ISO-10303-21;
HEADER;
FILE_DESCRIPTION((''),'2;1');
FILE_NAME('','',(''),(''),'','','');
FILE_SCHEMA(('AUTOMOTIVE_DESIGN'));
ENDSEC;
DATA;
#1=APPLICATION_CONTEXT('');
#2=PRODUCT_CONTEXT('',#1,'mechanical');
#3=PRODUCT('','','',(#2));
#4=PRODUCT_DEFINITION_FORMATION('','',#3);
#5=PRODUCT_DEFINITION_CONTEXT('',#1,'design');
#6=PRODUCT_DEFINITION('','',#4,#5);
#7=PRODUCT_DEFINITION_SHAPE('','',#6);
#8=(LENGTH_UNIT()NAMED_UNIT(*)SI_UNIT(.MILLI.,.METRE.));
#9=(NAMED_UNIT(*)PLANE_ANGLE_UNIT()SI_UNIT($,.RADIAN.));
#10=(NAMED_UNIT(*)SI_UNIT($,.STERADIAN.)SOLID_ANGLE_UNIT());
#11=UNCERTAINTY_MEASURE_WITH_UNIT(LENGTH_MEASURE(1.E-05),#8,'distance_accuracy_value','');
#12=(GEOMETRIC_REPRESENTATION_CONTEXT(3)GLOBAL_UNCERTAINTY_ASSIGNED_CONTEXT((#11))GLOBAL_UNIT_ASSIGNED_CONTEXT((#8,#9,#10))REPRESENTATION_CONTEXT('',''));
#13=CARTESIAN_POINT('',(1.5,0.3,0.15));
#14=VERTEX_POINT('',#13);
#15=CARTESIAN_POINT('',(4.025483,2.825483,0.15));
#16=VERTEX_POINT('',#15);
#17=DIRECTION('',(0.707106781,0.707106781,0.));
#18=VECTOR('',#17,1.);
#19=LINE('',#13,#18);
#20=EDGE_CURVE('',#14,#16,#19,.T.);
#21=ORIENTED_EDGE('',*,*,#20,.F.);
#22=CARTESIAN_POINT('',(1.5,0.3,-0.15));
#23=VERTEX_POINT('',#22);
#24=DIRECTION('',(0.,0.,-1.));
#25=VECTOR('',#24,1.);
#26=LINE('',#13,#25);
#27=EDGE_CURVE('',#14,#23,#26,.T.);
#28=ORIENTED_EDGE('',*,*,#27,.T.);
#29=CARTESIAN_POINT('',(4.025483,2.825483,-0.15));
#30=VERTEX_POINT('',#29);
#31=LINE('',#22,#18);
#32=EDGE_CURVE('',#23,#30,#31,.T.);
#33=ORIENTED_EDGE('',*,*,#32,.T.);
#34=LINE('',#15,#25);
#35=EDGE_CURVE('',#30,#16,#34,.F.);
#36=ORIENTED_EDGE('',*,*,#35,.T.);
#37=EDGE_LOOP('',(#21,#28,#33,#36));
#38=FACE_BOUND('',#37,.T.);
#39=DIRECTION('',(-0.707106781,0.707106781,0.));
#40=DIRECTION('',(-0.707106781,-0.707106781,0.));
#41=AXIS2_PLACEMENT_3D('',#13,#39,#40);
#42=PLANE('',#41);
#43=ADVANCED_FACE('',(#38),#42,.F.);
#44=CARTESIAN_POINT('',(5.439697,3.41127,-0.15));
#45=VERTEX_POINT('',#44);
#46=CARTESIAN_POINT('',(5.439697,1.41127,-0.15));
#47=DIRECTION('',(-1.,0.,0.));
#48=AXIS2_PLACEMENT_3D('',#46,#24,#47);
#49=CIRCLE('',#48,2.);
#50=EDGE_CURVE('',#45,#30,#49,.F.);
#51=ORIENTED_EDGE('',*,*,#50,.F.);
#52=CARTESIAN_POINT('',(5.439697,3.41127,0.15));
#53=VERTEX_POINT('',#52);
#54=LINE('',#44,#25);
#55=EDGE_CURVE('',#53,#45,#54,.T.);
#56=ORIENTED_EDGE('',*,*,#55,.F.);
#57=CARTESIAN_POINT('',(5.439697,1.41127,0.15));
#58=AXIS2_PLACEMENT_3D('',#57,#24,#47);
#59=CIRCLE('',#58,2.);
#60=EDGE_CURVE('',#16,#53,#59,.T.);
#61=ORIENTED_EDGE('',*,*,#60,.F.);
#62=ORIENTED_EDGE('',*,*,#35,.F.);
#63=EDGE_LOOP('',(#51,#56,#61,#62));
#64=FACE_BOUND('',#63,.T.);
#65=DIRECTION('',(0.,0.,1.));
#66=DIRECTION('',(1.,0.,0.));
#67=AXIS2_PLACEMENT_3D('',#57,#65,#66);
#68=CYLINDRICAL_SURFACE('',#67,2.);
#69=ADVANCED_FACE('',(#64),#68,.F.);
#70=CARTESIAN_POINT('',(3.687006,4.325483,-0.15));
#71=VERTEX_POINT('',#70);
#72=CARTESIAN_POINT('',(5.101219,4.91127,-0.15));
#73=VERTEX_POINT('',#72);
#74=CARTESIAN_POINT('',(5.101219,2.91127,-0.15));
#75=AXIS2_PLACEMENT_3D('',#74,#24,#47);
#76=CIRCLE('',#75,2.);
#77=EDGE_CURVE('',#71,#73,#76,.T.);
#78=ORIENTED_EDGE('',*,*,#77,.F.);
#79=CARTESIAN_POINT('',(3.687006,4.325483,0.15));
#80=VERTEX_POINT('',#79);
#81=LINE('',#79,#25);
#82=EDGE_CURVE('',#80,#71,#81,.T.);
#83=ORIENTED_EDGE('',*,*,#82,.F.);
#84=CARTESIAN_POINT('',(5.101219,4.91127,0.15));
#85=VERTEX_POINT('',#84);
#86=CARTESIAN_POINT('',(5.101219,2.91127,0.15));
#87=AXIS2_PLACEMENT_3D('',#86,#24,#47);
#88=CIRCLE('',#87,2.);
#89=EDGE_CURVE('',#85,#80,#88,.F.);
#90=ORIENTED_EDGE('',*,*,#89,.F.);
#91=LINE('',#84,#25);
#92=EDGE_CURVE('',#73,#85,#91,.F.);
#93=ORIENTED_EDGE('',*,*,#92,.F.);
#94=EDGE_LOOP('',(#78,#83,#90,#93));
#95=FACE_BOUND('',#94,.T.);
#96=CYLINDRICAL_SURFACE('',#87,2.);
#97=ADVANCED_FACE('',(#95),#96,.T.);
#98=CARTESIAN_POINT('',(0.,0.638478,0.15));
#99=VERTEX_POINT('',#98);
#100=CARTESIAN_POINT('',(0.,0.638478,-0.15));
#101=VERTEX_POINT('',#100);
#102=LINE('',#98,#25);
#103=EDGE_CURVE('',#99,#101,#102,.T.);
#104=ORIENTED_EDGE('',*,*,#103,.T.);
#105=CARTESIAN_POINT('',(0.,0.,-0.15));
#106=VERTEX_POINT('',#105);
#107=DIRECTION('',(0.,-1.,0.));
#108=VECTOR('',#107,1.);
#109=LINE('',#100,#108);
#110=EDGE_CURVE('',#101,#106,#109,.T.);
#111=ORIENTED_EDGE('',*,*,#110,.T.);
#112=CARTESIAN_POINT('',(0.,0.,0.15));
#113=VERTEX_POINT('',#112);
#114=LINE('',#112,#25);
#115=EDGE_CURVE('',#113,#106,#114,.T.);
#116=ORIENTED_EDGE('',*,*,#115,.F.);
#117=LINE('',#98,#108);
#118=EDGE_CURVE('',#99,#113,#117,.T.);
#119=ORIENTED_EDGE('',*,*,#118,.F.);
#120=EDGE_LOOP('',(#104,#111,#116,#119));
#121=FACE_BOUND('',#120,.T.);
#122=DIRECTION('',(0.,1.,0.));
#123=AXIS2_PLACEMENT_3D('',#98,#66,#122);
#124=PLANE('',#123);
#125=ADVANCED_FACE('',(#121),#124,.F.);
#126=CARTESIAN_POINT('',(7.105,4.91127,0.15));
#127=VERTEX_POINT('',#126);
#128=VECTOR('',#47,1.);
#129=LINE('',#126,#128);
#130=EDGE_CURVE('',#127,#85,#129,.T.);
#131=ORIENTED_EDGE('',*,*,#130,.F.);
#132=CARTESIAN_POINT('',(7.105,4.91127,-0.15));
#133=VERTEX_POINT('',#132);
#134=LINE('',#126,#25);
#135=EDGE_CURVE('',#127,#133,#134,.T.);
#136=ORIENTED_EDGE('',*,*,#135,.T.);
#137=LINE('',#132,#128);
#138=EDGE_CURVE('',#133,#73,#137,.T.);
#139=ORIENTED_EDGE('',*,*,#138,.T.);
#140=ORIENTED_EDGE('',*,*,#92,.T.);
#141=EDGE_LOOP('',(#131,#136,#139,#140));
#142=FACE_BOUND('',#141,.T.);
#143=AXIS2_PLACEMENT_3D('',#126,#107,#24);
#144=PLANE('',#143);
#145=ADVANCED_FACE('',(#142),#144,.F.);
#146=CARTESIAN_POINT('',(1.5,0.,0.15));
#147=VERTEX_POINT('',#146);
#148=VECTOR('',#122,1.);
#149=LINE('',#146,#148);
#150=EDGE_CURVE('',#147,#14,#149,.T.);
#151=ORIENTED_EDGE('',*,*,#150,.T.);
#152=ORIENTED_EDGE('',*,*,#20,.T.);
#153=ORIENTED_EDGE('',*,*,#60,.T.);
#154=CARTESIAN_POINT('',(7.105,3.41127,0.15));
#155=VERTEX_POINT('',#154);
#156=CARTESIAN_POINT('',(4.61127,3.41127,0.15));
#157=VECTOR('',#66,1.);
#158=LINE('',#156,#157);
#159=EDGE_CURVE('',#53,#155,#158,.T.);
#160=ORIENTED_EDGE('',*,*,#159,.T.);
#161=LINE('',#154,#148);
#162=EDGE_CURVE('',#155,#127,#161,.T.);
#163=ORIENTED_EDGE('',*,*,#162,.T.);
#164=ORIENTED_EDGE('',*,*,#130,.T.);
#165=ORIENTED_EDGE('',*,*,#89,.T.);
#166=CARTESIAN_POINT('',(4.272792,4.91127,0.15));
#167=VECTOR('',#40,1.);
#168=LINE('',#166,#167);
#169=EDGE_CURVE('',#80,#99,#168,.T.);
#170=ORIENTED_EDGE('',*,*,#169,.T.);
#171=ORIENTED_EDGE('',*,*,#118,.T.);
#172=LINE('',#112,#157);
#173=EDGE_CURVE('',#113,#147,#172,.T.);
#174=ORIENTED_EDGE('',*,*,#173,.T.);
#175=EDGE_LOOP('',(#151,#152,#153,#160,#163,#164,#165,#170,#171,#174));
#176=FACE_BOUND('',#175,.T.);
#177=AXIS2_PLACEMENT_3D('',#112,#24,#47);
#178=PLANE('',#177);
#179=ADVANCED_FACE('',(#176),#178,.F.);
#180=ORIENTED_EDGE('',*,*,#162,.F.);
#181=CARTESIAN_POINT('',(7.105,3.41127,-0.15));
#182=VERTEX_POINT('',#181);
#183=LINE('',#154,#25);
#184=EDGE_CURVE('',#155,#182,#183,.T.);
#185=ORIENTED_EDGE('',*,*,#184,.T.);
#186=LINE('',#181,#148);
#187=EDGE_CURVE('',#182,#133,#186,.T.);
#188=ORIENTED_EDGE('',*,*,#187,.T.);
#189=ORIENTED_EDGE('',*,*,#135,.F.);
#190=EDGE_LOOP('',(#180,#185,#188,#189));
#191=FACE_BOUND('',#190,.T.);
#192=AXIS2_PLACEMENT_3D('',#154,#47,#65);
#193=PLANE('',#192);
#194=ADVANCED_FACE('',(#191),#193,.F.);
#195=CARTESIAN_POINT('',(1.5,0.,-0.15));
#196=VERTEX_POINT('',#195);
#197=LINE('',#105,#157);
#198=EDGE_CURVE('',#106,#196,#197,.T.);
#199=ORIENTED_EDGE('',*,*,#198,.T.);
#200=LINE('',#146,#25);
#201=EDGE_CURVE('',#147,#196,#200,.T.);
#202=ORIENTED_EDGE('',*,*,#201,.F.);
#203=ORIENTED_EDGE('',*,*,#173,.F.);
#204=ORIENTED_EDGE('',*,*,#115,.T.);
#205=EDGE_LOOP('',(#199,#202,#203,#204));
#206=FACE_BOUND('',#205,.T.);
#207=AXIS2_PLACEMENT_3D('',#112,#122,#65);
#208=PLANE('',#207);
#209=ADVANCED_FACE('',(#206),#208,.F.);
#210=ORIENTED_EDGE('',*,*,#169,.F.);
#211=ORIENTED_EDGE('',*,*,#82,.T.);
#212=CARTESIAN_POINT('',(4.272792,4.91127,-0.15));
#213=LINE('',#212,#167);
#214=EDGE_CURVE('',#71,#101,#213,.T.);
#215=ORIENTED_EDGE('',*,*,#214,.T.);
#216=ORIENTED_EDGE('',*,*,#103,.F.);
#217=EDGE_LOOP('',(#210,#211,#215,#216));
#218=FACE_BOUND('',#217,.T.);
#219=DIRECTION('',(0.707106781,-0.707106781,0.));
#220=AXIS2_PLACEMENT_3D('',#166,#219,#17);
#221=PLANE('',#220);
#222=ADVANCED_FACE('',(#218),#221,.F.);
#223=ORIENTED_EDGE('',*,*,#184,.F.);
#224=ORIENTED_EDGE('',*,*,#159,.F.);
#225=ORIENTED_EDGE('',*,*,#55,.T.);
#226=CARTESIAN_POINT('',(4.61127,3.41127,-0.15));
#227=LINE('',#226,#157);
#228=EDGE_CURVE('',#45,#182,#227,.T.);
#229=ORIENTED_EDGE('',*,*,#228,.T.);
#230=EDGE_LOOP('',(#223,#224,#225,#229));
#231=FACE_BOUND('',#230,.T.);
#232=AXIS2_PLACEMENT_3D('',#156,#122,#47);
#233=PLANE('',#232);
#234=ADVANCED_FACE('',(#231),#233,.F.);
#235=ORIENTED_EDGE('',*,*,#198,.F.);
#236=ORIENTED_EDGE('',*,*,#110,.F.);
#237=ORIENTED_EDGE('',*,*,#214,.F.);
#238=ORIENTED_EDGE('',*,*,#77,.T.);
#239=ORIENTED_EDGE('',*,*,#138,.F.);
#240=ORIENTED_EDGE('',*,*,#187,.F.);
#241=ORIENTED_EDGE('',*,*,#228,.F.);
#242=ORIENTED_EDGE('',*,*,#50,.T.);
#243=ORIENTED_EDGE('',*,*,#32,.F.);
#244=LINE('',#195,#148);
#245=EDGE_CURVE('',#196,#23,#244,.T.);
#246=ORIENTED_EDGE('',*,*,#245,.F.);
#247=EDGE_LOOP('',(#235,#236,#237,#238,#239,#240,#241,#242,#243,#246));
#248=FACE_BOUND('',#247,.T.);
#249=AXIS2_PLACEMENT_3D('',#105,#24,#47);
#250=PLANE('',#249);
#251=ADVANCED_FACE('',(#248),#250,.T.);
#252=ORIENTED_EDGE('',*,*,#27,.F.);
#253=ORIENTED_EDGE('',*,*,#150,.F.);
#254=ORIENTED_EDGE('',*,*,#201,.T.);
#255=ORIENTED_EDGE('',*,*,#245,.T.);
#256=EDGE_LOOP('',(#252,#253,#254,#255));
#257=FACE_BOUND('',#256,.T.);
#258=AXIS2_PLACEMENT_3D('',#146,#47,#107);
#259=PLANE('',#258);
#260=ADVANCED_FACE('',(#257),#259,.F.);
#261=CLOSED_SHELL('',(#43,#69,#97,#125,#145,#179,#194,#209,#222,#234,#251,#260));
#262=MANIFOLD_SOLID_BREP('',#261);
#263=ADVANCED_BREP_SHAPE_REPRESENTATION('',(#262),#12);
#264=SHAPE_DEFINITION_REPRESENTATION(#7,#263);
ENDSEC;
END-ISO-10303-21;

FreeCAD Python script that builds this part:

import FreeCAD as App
import Part
import Sketcher
Q = App.Units.Quantity


def edges_at(feature, points):
    """Names of the edges that pass closest to the given points."""
    edges = feature.Shape.Edges
    near = lambda p: min(range(len(edges)), key=lambda i: edges[i].distToShape(Part.Vertex(*p))[0])
    return sorted({f"Edge{near(p) + 1}" for p in points})

doc = App.newDocument("Part")
params = doc.addObject("Spreadsheet::Sheet", "Params")
for row, (alias, value) in enumerate([
    ("sketch1_width", "1.5 mm"),
    ("sketch1_height", "0.3 mm"),
    ("sketch1_length", "4.4 mm"),
    ("pad1_length", "0.3 mm"),
    ("fillet_radius", "2 mm"),
], start=1):
    params.set(f"A{row}", alias)
    params.set(f"B{row}", "=" + value)
    params.setAlias(f"B{row}", alias)

body = doc.addObject("PartDesign::Body", "Body")

# Sketch on XY plane
sketch1 = body.newObject("Sketcher::SketchObject", "Sketch")
sketch1.AttachmentSupport = (doc.getObject("XY_Plane"), [""])
sketch1.MapMode = "FlatFace"
sketch1.addGeometry([
    Part.LineSegment(App.Vector(0, 0, 0), App.Vector(1.5, 0, 0)),  # 0
    Part.LineSegment(App.Vector(1.5, 0, 0), App.Vector(1.5, 0.3, 0)),  # 1
    Part.LineSegment(App.Vector(1.5, 0.3, 0), App.Vector(4.61127, 3.41127, 0)),  # 2
    Part.LineSegment(App.Vector(4.61127, 3.41127, 0), App.Vector(7.105, 3.41127, 0)),  # 3
    Part.LineSegment(App.Vector(7.105, 3.41127, 0), App.Vector(7.105, 4.91127, 0)),  # 4
    Part.LineSegment(App.Vector(7.105, 4.91127, 0), App.Vector(4.272792, 4.91127, 0)),  # 5
    Part.LineSegment(App.Vector(4.272792, 4.91127, 0), App.Vector(0, 0.638478, 0)),  # 6
    Part.LineSegment(App.Vector(0, 0.638478, 0), App.Vector(0, 0, 0)),  # 7
], False)
sketch1.addConstraint([
    Sketcher.Constraint("Coincident", 0, 2, 1, 1),
    Sketcher.Constraint("Coincident", 1, 2, 2, 1),
    Sketcher.Constraint("Coincident", 2, 2, 3, 1),
    Sketcher.Constraint("Coincident", 3, 2, 4, 1),
    Sketcher.Constraint("Coincident", 4, 2, 5, 1),
    Sketcher.Constraint("Coincident", 5, 2, 6, 1),
    Sketcher.Constraint("Coincident", 6, 2, 7, 1),
    Sketcher.Constraint("Coincident", 7, 2, 0, 1),
    Sketcher.Constraint("Horizontal", 0),
    Sketcher.Constraint("Vertical", 1),
    Sketcher.Constraint("Horizontal", 3),
    Sketcher.Constraint("Vertical", 4),
    Sketcher.Constraint("Horizontal", 5),
    Sketcher.Constraint("Vertical", 7),
    Sketcher.Constraint("Coincident", 7, 2, -1, 1),
    Sketcher.Constraint("Parallel", 2, 6),
    Sketcher.Constraint("Equal", 0, 4),
    Sketcher.Constraint("Angle", 2, Q("45 deg")),
    Sketcher.Constraint("DistanceX", 0, 1, 0, 2, Q("1.5 mm")),
    Sketcher.Constraint("DistanceY", 1, 1, 1, 2, Q("0.3 mm")),
    Sketcher.Constraint("Distance", 2, Q("4.4 mm")),
    Sketcher.Constraint("DistanceX", -1, 1, 3, 2, Q("7.105 mm")),
    Sketcher.Constraint("Distance", 6, Q("6.042641 mm")),
])
sketch1.setExpression("Constraints[18]", "Params.sketch1_width")
sketch1.setExpression("Constraints[19]", "Params.sketch1_height")
sketch1.setExpression("Constraints[20]", "Params.sketch1_length")
pad1 = body.newObject("PartDesign::Pad", "Pad")
pad1.Profile = sketch1
pad1.setExpression("Length", "Params.pad1_length")
pad1.Midplane = True
doc.recompute()

fillet = body.newObject("PartDesign::Fillet", "Fillet")
fillet.Base = (pad1, edges_at(pad1, [(4.273, 4.911, 0), (4.611, 3.411, 0)]))
fillet.setExpression("Radius", "Params.fillet_radius")

doc.recompute()
